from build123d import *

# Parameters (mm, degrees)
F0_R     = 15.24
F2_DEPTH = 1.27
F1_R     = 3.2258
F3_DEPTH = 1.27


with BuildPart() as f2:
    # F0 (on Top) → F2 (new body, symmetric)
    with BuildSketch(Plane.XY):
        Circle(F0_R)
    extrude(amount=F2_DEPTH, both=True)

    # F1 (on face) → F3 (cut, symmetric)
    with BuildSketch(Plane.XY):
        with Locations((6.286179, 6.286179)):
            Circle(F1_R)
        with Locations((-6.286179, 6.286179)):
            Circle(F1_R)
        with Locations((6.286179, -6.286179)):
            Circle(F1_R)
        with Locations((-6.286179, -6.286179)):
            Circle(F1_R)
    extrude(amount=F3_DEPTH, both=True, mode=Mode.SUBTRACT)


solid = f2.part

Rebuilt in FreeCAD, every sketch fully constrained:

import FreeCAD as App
import Part
import Sketcher
from FreeCAD import Vector
Q = App.Units.Quantity

doc = App.newDocument("Part")
body = doc.addObject("PartDesign::Body", "Body")

sketch1 = doc.addObject("Sketcher::SketchObject", "Sketch")
body.addObject(sketch1)
sketch1.AttachmentSupport = (doc.XY_Plane, [""])
sketch1.MapMode = "FlatFace"
sketch1.addGeometry(Part.Circle(Vector(0, 0, 0), Vector(0, 0, 1), 15.24), False)
sketch1.addConstraint([
    Sketcher.Constraint("Coincident", 0, 3, -1, 1),
    Sketcher.Constraint("Diameter", 0, Q("1.2 in")),
])
pad1 = doc.addObject("PartDesign::Pad", "Pad")
body.addObject(pad1)
pad1.Profile = sketch1
pad1.Length = Q("0.1 in")
pad1.Midplane = True

sketch2 = doc.addObject("Sketcher::SketchObject", "Sketch001")
body.addObject(sketch2)
sketch2.AttachmentSupport = (doc.XY_Plane, [""])
sketch2.MapMode = "FlatFace"
sketch2.addGeometry([
    Part.Circle(Vector(6.286179, 6.286179, 0), Vector(0, 0, 1), 3.2258),
    Part.Circle(Vector(-6.286179, 6.286179, 0), Vector(0, 0, 1), 3.2258),
    Part.Circle(Vector(6.286179, -6.286179, 0), Vector(0, 0, 1), 3.2258),
    Part.Circle(Vector(-6.286179, -6.286179, 0), Vector(0, 0, 1), 3.2258),
], False)
sketch2.addConstraint([
    Sketcher.Constraint("Equal", 0, 1),
    Sketcher.Constraint("Equal", 1, 2),
    Sketcher.Constraint("Equal", 2, 3),
    Sketcher.Constraint("Symmetric", 1, 3, 2, 3, -1, 1),
    Sketcher.Constraint("Symmetric", 0, 3, 3, 3, -1, 1),
    Sketcher.Constraint("Symmetric", 0, 3, 1, 3, -2),
    Sketcher.Constraint("Diameter", 0, Q("0.254 in")),
    Sketcher.Constraint("DistanceX", -1, 1, 0, 3, 6.286179),
    Sketcher.Constraint("DistanceY", -1, 1, 0, 3, 6.286179),
])
pocket1 = doc.addObject("PartDesign::Pocket", "Pocket")
body.addObject(pocket1)
pocket1.Profile = sketch2
pocket1.Length = Q("0.1 in")
pocket1.Midplane = True

doc.recompute()
